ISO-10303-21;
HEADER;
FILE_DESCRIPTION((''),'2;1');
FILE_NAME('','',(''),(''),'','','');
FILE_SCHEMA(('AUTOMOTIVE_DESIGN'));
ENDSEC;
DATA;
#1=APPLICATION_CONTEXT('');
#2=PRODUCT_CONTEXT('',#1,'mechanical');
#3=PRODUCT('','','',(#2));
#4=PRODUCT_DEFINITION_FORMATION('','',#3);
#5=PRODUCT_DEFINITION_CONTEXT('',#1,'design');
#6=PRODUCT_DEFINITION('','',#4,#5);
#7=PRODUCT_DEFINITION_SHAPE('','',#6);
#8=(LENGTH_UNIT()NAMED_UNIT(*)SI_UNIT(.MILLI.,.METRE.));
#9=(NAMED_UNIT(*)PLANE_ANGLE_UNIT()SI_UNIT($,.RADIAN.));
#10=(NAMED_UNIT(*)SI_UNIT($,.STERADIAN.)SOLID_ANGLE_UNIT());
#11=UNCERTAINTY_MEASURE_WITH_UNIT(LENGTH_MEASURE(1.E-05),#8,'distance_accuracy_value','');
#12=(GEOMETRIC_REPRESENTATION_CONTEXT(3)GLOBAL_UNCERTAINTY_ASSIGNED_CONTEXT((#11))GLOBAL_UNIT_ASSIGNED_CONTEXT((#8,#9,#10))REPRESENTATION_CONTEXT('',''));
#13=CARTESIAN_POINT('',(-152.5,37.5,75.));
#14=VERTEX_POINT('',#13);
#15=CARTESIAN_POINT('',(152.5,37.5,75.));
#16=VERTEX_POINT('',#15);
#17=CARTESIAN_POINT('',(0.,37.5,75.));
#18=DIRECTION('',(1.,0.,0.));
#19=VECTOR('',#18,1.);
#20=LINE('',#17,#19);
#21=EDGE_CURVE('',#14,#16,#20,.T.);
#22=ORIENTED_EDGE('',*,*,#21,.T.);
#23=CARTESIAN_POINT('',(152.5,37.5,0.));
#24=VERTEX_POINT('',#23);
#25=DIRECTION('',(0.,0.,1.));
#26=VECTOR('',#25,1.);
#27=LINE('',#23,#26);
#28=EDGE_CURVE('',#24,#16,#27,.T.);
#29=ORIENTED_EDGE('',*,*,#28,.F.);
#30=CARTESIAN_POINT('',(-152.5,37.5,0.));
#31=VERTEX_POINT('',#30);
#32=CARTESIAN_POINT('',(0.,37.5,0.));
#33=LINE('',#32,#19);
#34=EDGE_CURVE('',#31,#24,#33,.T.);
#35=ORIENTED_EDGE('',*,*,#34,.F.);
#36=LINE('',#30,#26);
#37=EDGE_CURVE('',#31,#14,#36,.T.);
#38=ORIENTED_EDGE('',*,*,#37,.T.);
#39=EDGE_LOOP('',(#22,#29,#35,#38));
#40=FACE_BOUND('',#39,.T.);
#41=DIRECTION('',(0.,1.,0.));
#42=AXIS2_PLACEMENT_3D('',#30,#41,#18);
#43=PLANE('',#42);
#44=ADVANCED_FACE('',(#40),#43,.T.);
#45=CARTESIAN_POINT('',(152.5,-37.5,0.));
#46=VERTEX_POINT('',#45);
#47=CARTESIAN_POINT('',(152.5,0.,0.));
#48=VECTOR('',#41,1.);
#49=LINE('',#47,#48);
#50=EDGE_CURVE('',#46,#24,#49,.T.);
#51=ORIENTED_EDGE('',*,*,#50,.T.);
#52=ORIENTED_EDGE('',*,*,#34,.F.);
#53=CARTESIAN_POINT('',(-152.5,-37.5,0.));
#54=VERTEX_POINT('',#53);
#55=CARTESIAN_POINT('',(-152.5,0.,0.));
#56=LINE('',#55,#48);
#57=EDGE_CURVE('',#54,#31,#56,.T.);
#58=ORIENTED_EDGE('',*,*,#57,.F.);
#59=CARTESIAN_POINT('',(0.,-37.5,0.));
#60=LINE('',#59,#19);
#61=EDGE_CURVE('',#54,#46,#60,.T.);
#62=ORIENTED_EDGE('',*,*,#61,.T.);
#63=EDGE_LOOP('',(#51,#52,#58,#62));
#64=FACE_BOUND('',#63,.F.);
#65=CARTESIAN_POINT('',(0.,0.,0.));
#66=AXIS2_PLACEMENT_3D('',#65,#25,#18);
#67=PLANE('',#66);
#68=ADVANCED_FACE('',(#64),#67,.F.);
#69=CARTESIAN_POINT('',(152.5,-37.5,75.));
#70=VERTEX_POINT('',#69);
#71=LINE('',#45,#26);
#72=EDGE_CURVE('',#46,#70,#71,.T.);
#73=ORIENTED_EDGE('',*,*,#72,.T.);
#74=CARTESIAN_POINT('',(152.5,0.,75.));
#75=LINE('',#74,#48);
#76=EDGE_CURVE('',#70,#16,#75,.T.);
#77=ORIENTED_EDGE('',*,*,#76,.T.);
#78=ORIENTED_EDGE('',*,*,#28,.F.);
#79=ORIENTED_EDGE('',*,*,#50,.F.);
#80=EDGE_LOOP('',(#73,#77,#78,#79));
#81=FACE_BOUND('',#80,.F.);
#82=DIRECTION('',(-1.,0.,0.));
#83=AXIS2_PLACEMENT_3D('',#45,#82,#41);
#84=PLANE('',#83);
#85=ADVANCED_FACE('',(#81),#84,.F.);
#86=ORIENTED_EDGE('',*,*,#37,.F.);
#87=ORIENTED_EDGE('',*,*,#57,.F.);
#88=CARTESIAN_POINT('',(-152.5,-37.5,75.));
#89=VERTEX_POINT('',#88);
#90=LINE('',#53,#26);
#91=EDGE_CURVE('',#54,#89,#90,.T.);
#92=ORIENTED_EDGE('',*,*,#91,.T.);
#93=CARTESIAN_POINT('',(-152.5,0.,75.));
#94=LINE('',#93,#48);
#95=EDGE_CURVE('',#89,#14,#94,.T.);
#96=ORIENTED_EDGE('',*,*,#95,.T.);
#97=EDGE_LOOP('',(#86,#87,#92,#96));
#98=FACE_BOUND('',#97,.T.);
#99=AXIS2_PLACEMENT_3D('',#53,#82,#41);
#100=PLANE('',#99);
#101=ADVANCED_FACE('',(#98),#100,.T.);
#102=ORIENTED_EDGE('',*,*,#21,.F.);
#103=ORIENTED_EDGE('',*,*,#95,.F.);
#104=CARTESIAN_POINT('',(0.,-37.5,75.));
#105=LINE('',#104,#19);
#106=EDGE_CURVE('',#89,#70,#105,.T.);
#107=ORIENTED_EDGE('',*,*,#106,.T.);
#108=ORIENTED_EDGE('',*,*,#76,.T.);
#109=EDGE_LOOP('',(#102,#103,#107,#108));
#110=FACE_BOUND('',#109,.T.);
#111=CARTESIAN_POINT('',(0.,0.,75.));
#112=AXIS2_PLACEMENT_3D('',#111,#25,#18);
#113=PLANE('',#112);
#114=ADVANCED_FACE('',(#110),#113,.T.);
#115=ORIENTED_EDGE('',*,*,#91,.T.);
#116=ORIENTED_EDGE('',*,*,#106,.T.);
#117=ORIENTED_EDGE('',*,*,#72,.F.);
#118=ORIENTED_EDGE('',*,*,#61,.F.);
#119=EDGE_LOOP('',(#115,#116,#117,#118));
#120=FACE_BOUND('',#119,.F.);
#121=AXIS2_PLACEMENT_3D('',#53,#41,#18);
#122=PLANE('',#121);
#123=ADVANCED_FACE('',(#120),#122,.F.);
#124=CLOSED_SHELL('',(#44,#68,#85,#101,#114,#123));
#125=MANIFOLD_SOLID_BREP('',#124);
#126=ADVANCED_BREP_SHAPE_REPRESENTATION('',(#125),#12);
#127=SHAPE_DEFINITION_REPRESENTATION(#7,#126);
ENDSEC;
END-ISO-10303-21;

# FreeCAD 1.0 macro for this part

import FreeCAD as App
import Part
import Sketcher

doc = App.newDocument("Part")
params = doc.addObject("Spreadsheet::Sheet", "Params")
for row, (alias, value) in enumerate([
    ("sketch1_width", "305 mm"),
    ("sketch1_height", "75 mm"),
    ("pad1_length", "75 mm"),
    ("sketch2_diameter", "19 mm"),
    ("pad2_length", "55 mm"),
], start=1):
    params.set(f"A{row}", alias)
    params.set(f"B{row}", "=" + value)
    params.setAlias(f"B{row}", alias)

body = doc.addObject("PartDesign::Body", "Body")

sketch1 = doc.addObject("Sketcher::SketchObject", "Sketch")
body.addObject(sketch1)
sketch1.AttachmentSupport = (doc.XY_Plane, [""])
sketch1.MapMode = "FlatFace"
sketch1.addGeometry([
    Part.LineSegment(App.Vector(-152, 38, 0), App.Vector(-152, -38, 0)),
    Part.LineSegment(App.Vector(-152, -38, 0), App.Vector(152, -38, 0)),
    Part.LineSegment(App.Vector(152, -38, 0), App.Vector(152, 38, 0)),
    Part.LineSegment(App.Vector(152, 38, 0), App.Vector(-152, 38, 0)),
], False)
sketch1.addConstraint([
    Sketcher.Constraint("Coincident", 0, 2, 1, 1),
    Sketcher.Constraint("Coincident", 1, 2, 2, 1),
    Sketcher.Constraint("Coincident", 2, 2, 3, 1),
    Sketcher.Constraint("Coincident", 3, 2, 0, 1),
    Sketcher.Constraint("Vertical", 0),
    Sketcher.Constraint("Horizontal", 1),
    Sketcher.Constraint("Vertical", 2),
    Sketcher.Constraint("Horizontal", 3),
    Sketcher.Constraint("Symmetric", 0, 2, 2, 2, -1, 1),
    Sketcher.Constraint("DistanceX", 1, 1, 1, 2, 305.0),
    Sketcher.Constraint("DistanceY", 0, 2, 0, 1, 75.0),
])
sketch1.setExpression("Constraints[9]", "Params.sketch1_width")
sketch1.setExpression("Constraints[10]", "Params.sketch1_height")
pad1 = doc.addObject("PartDesign::Pad", "Pad")
body.addObject(pad1)
pad1.Profile = sketch1
pad1.setExpression("Length", "Params.pad1_length")

sketch2 = doc.addObject("Sketcher::SketchObject", "Sketch001")
body.addObject(sketch2)
sketch2.AttachmentSupport = (doc.YZ_Plane, [""])
sketch2.MapMode = "FlatFace"
sketch2.AttachmentOffset = App.Placement(App.Vector(0, 0, -152.5), App.Rotation())
sketch2.addGeometry(Part.Circle(App.Vector(0, 43, 0), App.Vector(0, 0, 1), 10), False)
sketch2.addConstraint([
    Sketcher.Constraint("Diameter", 0, 19.0),
    Sketcher.Constraint("DistanceY", -1, 1, 0, 3, 43.0),
    Sketcher.Constraint("DistanceX", -1, 1, 0, 3, 0.5),
])
sketch2.setExpression("Constraints[0]", "Params.sketch2_diameter")
pad2 = doc.addObject("PartDesign::Pad", "Pad001")
body.addObject(pad2)
pad2.Profile = sketch2
pad2.setExpression("Length", "Params.pad2_length")

doc.recompute()
